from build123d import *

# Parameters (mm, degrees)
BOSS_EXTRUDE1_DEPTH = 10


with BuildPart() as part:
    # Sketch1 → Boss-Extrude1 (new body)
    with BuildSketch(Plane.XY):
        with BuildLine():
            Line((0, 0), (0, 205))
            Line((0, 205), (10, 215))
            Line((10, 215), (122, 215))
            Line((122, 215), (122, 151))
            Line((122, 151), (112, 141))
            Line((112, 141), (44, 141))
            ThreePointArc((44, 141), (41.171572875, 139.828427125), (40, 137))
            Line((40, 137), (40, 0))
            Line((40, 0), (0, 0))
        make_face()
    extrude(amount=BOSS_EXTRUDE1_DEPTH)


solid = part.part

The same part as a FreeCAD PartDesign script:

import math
import FreeCAD as App
import Part
import Sketcher
Q = App.Units.Quantity

doc = App.newDocument("Part")
params = doc.addObject("Spreadsheet::Sheet", "Params")
for row, (alias, value) in enumerate([
    ("sketch1_radius", "4 mm"),
    ("sketch1_width", "40 mm"),
    ("sketch1_width2", "68 mm"),
    ("sketch1_height", "205 mm"),
    ("sketch1_height2", "137 mm"),
    ("pad1_length", "10 mm"),
], start=1):
    params.set(f"A{row}", alias)
    params.set(f"B{row}", "=" + value)
    params.setAlias(f"B{row}", alias)

body = doc.addObject("PartDesign::Body", "Body")

sketch1 = body.newObject("Sketcher::SketchObject", "Sketch")
sketch1.AttachmentSupport = (doc.getObject("XY_Plane"), [""])
sketch1.MapMode = "FlatFace"
sketch1.addGeometry([
    Part.LineSegment(App.Vector(0, 205, 0), App.Vector(0, 0, 0)),
    Part.LineSegment(App.Vector(0, 0, 0), App.Vector(40, 0, 0)),
    Part.LineSegment(App.Vector(40, 0, 0), App.Vector(40, 137, 0)),
    Part.ArcOfCircle(Part.Circle(App.Vector(44, 137, 0), App.Vector(0, 0, 1), 4), math.radians(90), math.radians(180)),
    Part.LineSegment(App.Vector(44, 141, 0), App.Vector(112, 141, 0)),
    Part.LineSegment(App.Vector(112, 141, 0), App.Vector(122, 151, 0)),
    Part.LineSegment(App.Vector(122, 151, 0), App.Vector(122, 215, 0)),
    Part.LineSegment(App.Vector(122, 215, 0), App.Vector(10, 215, 0)),
    Part.LineSegment(App.Vector(10, 215, 0), App.Vector(0, 205, 0)),
], False)
sketch1.addConstraint([
    Sketcher.Constraint("Coincident", 0, 2, 1, 1),
    Sketcher.Constraint("Coincident", 1, 2, 2, 1),
    Sketcher.Constraint("Tangent", 2, 2, 3, 2),
    Sketcher.Constraint("Tangent", 3, 1, 4, 1),
    Sketcher.Constraint("Coincident", 4, 2, 5, 1),
    Sketcher.Constraint("Coincident", 5, 2, 6, 1),
    Sketcher.Constraint("Coincident", 6, 2, 7, 1),
    Sketcher.Constraint("Coincident", 7, 2, 8, 1),
    Sketcher.Constraint("Coincident", 8, 2, 0, 1),
    Sketcher.Constraint("Vertical", 0),
    Sketcher.Constraint("Horizontal", 1),
    Sketcher.Constraint("Vertical", 2),
    Sketcher.Constraint("Horizontal", 4),
    Sketcher.Constraint("Vertical", 6),
    Sketcher.Constraint("Horizontal", 7),
    Sketcher.Constraint("Coincident", 0, 2, -1, 1),
    Sketcher.Constraint("Parallel", 5, 8),
    Sketcher.Constraint("Equal", 5, 8),
    Sketcher.Constraint("Radius", 3, 4.0),
    Sketcher.Constraint("DistanceX", 1, 1, 1, 2, 40.0),
    Sketcher.Constraint("DistanceX", 4, 1, 4, 2, 68.0),
    Sketcher.Constraint("DistanceY", 0, 2, 0, 1, 205.0),
    Sketcher.Constraint("DistanceY", 2, 1, 2, 2, 137.0),
    Sketcher.Constraint("Angle", 5, Q("45 deg")),
    Sketcher.Constraint("DistanceX", -1, 1, 5, 2, 122.0),
])
sketch1.setExpression("Constraints[18]", "Params.sketch1_radius")
sketch1.setExpression("Constraints[19]", "Params.sketch1_width")
sketch1.setExpression("Constraints[20]", "Params.sketch1_width2")
sketch1.setExpression("Constraints[21]", "Params.sketch1_height")
sketch1.setExpression("Constraints[22]", "Params.sketch1_height2")
pad1 = body.newObject("PartDesign::Pad", "Pad")
pad1.Profile = sketch1
pad1.setExpression("Length", "Params.pad1_length")

doc.recompute()
